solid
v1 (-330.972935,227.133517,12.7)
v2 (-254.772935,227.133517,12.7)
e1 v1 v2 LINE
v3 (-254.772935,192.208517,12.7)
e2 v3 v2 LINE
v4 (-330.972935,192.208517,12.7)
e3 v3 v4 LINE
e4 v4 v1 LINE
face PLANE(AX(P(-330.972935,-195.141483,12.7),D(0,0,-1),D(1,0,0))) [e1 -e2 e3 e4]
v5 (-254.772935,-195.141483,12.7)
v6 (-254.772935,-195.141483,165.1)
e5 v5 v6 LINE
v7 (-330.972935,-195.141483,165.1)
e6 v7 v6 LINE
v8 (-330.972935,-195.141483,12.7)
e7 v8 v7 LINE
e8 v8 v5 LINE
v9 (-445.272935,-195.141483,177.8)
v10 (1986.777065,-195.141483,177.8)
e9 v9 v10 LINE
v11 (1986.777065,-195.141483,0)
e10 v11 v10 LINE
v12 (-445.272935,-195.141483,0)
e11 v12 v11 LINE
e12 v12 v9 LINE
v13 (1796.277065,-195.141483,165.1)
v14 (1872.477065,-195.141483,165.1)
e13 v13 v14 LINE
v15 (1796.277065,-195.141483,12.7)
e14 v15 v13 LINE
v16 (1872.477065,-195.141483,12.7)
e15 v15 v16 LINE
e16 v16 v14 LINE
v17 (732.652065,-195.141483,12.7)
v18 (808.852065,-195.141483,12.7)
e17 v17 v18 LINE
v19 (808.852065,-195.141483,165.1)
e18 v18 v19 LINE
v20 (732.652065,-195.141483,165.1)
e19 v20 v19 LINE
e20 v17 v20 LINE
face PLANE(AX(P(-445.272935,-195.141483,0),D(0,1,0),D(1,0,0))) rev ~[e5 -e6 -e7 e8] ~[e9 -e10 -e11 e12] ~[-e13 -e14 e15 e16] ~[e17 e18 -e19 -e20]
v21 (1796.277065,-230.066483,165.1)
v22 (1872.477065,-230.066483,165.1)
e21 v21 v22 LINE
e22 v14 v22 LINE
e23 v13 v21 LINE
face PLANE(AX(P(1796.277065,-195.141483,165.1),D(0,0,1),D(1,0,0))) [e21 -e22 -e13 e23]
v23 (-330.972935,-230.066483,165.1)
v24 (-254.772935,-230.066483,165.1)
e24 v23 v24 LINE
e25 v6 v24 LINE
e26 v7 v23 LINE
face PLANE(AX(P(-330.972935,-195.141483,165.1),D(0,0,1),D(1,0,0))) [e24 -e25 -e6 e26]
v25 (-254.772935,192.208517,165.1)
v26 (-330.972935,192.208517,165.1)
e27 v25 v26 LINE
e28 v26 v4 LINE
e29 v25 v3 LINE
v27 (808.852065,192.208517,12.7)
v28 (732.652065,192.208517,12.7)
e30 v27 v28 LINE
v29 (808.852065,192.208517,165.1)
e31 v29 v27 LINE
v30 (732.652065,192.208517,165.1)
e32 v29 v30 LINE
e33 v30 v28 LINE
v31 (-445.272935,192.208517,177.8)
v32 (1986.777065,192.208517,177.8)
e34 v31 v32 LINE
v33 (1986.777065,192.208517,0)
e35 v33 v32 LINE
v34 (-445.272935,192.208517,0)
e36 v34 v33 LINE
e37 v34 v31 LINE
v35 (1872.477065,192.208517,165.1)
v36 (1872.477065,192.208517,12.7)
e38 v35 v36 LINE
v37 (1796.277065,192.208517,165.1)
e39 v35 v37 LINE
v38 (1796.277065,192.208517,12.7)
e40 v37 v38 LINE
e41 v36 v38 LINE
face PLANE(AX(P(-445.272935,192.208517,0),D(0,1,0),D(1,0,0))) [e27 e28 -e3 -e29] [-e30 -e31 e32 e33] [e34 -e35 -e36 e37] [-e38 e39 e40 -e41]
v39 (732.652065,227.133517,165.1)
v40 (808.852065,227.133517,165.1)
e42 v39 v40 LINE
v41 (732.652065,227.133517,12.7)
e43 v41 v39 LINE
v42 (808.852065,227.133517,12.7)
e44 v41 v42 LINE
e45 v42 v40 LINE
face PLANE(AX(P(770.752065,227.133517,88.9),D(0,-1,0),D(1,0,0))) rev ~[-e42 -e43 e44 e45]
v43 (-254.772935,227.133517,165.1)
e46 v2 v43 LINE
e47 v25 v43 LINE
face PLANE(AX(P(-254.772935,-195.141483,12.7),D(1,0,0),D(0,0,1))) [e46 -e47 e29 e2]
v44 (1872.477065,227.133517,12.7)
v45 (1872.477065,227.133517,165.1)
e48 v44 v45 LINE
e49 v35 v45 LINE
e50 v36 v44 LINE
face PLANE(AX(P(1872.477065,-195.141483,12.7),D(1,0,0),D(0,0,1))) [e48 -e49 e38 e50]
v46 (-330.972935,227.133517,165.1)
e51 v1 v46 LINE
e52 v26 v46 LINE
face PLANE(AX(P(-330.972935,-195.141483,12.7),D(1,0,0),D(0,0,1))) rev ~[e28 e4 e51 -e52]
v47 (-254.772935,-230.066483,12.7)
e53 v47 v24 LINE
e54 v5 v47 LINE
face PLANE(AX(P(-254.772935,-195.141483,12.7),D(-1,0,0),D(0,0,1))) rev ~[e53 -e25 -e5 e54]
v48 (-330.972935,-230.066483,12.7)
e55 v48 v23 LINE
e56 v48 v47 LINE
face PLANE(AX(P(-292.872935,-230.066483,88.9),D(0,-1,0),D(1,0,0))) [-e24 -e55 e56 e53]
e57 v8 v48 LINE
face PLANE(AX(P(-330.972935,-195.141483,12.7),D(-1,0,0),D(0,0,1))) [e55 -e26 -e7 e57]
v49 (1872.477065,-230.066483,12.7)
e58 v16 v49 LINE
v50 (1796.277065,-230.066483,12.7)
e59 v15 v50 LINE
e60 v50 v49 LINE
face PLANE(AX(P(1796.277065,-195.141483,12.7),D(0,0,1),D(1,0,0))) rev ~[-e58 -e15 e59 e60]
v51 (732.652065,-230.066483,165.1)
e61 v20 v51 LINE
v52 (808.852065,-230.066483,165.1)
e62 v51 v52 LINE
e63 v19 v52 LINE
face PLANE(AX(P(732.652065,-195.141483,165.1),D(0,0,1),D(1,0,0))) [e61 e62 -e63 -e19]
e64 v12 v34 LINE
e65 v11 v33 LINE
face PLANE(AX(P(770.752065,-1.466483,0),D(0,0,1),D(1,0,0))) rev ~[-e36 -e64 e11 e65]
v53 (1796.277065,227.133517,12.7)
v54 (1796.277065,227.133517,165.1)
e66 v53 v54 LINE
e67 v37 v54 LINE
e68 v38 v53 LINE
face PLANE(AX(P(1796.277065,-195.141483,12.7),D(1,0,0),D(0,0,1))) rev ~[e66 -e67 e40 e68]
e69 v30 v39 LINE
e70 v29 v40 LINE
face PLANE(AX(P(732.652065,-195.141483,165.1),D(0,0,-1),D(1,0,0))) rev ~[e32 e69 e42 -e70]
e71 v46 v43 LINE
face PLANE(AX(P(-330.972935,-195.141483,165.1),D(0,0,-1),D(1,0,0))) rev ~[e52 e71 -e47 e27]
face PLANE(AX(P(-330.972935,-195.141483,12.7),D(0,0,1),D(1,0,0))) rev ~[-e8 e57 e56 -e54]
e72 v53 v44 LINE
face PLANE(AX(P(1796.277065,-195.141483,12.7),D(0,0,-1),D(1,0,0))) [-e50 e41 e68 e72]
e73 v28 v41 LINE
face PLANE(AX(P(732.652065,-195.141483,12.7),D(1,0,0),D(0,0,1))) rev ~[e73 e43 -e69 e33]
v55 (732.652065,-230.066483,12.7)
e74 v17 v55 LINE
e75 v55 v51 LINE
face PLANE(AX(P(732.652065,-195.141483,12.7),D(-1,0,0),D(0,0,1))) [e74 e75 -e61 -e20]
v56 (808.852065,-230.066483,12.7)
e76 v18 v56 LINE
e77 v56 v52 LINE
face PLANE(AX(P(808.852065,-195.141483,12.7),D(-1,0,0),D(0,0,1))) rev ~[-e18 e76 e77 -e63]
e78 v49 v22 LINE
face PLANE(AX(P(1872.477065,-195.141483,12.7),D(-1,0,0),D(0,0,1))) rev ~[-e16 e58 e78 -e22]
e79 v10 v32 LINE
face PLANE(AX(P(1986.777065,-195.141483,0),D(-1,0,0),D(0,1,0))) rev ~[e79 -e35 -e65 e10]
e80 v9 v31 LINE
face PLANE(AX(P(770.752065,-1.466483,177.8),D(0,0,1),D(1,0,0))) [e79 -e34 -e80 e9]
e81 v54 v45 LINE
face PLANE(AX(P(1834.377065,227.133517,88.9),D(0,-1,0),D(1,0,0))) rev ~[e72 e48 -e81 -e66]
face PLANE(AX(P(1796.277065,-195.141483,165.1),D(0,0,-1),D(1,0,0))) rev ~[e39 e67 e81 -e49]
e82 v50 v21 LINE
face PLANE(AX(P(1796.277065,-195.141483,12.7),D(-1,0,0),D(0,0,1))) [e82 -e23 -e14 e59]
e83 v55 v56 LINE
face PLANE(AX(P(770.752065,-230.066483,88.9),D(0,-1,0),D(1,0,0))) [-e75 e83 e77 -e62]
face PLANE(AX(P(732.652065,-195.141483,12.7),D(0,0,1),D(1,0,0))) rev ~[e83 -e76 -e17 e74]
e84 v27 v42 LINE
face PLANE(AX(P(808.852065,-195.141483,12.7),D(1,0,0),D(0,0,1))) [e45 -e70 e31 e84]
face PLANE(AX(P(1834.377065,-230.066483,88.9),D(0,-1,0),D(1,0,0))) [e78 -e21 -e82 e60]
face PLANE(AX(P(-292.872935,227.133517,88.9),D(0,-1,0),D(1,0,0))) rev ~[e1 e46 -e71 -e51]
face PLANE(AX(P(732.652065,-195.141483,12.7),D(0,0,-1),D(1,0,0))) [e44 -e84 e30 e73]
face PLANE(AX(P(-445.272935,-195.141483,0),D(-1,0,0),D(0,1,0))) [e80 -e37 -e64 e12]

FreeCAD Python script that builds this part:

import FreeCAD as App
import Part
import Sketcher

V = App.Vector
Q = App.Units.Quantity


def add_polygon(sketch, points):
    """Adds a closed chain of lines whose ends are joined by coincident constraints."""
    first, n = sketch.GeometryCount, len(points)
    for a, b in zip(points, points[1:] + points[:1]):
        sketch.addGeometry(Part.LineSegment(App.Vector(*a, 0), App.Vector(*b, 0)), False)
    for i in range(n):
        sketch.addConstraint(Sketcher.Constraint("Coincident", first + i, 2, first + (i + 1) % n, 1))

doc = App.newDocument("Part")
body = doc.addObject("PartDesign::Body", "Body")

sketch1 = body.newObject("Sketcher::SketchObject", "Sketch")
sketch1.AttachmentSupport = (doc.getObject("XY_Plane"), [""])
sketch1.MapMode = "FlatFace"
add_polygon(sketch1, [(-445, 192), (-445, -195), (1987, -195), (1987, 192)])
sketch1.addConstraint([
    Sketcher.Constraint("Vertical", 0),
    Sketcher.Constraint("Horizontal", 1),
    Sketcher.Constraint("Vertical", 2),
    Sketcher.Constraint("Horizontal", 3),
    Sketcher.Constraint("DistanceX", 1, 1, 1, 2, Q("95.75 in")),
    Sketcher.Constraint("DistanceY", 0, 2, 0, 1, Q("15.25 in")),
    Sketcher.Constraint("DistanceX", 0, 2, -1, 1, Q("445.272935 mm")),
    Sketcher.Constraint("DistanceY", 0, 2, -1, 1, Q("195.141483 mm")),
])
pad1 = body.newObject("PartDesign::Pad", "Pad")
pad1.Profile = sketch1
pad1.Length = Q("7 in")

sketch2 = body.newObject("Sketcher::SketchObject", "Sketch001")
sketch2.AttachmentSupport = (doc.getObject("XZ_Plane"), [""])
sketch2.MapMode = "FlatFace"
sketch2.AttachmentOffset = App.Placement(V(0, 0, 195.141483), App.Rotation())
add_polygon(sketch2, [(-331, 165), (-331, 13), (-255, 13), (-255, 165)])
sketch2.addConstraint([
    Sketcher.Constraint("Vertical", 0),
    Sketcher.Constraint("Horizontal", 1),
    Sketcher.Constraint("Vertical", 2),
    Sketcher.Constraint("Horizontal", 3),
    Sketcher.Constraint("DistanceX", 1, 1, 1, 2, Q("3 in")),
    Sketcher.Constraint("DistanceY", 0, 2, 0, 1, Q("6 in")),
    Sketcher.Constraint("DistanceY", -1, 1, 0, 2, Q("0.5 in")),
    Sketcher.Constraint("DistanceX", 0, 2, -1, 1, Q("330.972935 mm")),
])
pad2 = body.newObject("PartDesign::Pad", "Pad001")
pad2.Profile = sketch2
pad2.Length = Q("1.375 in")

sketch3 = body.newObject("Sketcher::SketchObject", "Sketch002")
sketch3.AttachmentSupport = (doc.getObject("XZ_Plane"), [""])
sketch3.MapMode = "FlatFace"
sketch3.AttachmentOffset = App.Placement(V(0, 0, 195.141483), App.Rotation())
add_polygon(sketch3, [(1796, 165), (1796, 13), (1872, 13), (1872, 165)])
sketch3.addConstraint([
    Sketcher.Constraint("Vertical", 0),
    Sketcher.Constraint("Horizontal", 1),
    Sketcher.Constraint("Vertical", 2),
    Sketcher.Constraint("Horizontal", 3),
    Sketcher.Constraint("DistanceX", 1, 1, 1, 2, Q("3 in")),
    Sketcher.Constraint("DistanceY", 0, 2, 0, 1, Q("6 in")),
    Sketcher.Constraint("DistanceY", -1, 1, 0, 2, Q("0.5 in")),
    Sketcher.Constraint("DistanceX", -1, 1, 0, 2, Q("1796.277065 mm")),
])
pad3 = body.newObject("PartDesign::Pad", "Pad002")
pad3.Profile = sketch3
pad3.Length = Q("1.375 in")

sketch4 = body.newObject("Sketcher::SketchObject", "Sketch003")
sketch4.AttachmentSupport = (doc.getObject("XZ_Plane"), [""])
sketch4.MapMode = "FlatFace"
sketch4.AttachmentOffset = App.Placement(V(0, 0, 195.141483), App.Rotation())
add_polygon(sketch4, [(1796, 165), (1796, 13), (1872, 13), (1872, 165)])
sketch4.addConstraint([
    Sketcher.Constraint("Vertical", 0),
    Sketcher.Constraint("Horizontal", 1),
    Sketcher.Constraint("Vertical", 2),
    Sketcher.Constraint("Horizontal", 3),
    Sketcher.Constraint("DistanceX", 1, 1, 1, 2, Q("3 in")),
    Sketcher.Constraint("DistanceY", 0, 2, 0, 1, Q("6 in")),
    Sketcher.Constraint("DistanceY", -1, 1, 0, 2, Q("0.5 in")),
    Sketcher.Constraint("DistanceX", -1, 1, 0, 2, Q("1796.277065 mm")),
])
pad4 = body.newObject("PartDesign::Pad", "Pad003")
pad4.Profile = sketch4
pad4.Length = Q("16.625 in")
pad4.Reversed = True

sketch5 = body.newObject("Sketcher::SketchObject", "Sketch004")
sketch5.AttachmentSupport = (doc.getObject("XZ_Plane"), [""])
sketch5.MapMode = "FlatFace"
sketch5.AttachmentOffset = App.Placement(V(0, 0, 195.141483), App.Rotation())
add_polygon(sketch5, [(-331, 165), (-331, 13), (-255, 13), (-255, 165)])
sketch5.addConstraint([
    Sketcher.Constraint("Vertical", 0),
    Sketcher.Constraint("Horizontal", 1),
    Sketcher.Constraint("Vertical", 2),
    Sketcher.Constraint("Horizontal", 3),
    Sketcher.Constraint("DistanceX", 1, 1, 1, 2, Q("3 in")),
    Sketcher.Constraint("DistanceY", 0, 2, 0, 1, Q("6 in")),
    Sketcher.Constraint("DistanceY", -1, 1, 0, 2, Q("0.5 in")),
    Sketcher.Constraint("DistanceX", 0, 2, -1, 1, Q("330.972935 mm")),
])
pad5 = body.newObject("PartDesign::Pad", "Pad004")
pad5.Profile = sketch5
pad5.Length = Q("16.625 in")
pad5.Reversed = True

sketch6 = body.newObject("Sketcher::SketchObject", "Sketch005")
sketch6.AttachmentSupport = (doc.getObject("XZ_Plane"), [""])
sketch6.MapMode = "FlatFace"
sketch6.AttachmentOffset = App.Placement(V(0, 0, 195.141483), App.Rotation())
add_polygon(sketch6, [(733, 165), (733, 13), (809, 13), (809, 165)])
sketch6.addConstraint([
    Sketcher.Constraint("Vertical", 0),
    Sketcher.Constraint("Horizontal", 1),
    Sketcher.Constraint("Vertical", 2),
    Sketcher.Constraint("Horizontal", 3),
    Sketcher.Constraint("DistanceX", 1, 1, 1, 2, Q("3 in")),
    Sketcher.Constraint("DistanceY", 0, 2, 0, 1, Q("6 in")),
    Sketcher.Constraint("DistanceY", -1, 1, 0, 2, Q("0.5 in")),
    Sketcher.Constraint("DistanceX", -1, 1, 0, 2, Q("732.652065 mm")),
])
pad6 = body.newObject("PartDesign::Pad", "Pad005")
pad6.Profile = sketch6
pad6.Length = Q("1.375 in")

sketch7 = body.newObject("Sketcher::SketchObject", "Sketch006")
sketch7.AttachmentSupport = (doc.getObject("XZ_Plane"), [""])
sketch7.MapMode = "FlatFace"
sketch7.AttachmentOffset = App.Placement(V(0, 0, 195.141483), App.Rotation())
add_polygon(sketch7, [(733, 165), (733, 13), (809, 13), (809, 165)])
sketch7.addConstraint([
    Sketcher.Constraint("Vertical", 0),
    Sketcher.Constraint("Horizontal", 1),
    Sketcher.Constraint("Vertical", 2),
    Sketcher.Constraint("Horizontal", 3),
    Sketcher.Constraint("DistanceX", 1, 1, 1, 2, Q("3 in")),
    Sketcher.Constraint("DistanceY", 0, 2, 0, 1, Q("6 in")),
    Sketcher.Constraint("DistanceY", -1, 1, 0, 2, Q("0.5 in")),
    Sketcher.Constraint("DistanceX", -1, 1, 0, 2, Q("732.652065 mm")),
])
pad7 = body.newObject("PartDesign::Pad", "Pad006")
pad7.Profile = sketch7
pad7.Length = Q("16.625 in")
pad7.Reversed = True

doc.recompute()
